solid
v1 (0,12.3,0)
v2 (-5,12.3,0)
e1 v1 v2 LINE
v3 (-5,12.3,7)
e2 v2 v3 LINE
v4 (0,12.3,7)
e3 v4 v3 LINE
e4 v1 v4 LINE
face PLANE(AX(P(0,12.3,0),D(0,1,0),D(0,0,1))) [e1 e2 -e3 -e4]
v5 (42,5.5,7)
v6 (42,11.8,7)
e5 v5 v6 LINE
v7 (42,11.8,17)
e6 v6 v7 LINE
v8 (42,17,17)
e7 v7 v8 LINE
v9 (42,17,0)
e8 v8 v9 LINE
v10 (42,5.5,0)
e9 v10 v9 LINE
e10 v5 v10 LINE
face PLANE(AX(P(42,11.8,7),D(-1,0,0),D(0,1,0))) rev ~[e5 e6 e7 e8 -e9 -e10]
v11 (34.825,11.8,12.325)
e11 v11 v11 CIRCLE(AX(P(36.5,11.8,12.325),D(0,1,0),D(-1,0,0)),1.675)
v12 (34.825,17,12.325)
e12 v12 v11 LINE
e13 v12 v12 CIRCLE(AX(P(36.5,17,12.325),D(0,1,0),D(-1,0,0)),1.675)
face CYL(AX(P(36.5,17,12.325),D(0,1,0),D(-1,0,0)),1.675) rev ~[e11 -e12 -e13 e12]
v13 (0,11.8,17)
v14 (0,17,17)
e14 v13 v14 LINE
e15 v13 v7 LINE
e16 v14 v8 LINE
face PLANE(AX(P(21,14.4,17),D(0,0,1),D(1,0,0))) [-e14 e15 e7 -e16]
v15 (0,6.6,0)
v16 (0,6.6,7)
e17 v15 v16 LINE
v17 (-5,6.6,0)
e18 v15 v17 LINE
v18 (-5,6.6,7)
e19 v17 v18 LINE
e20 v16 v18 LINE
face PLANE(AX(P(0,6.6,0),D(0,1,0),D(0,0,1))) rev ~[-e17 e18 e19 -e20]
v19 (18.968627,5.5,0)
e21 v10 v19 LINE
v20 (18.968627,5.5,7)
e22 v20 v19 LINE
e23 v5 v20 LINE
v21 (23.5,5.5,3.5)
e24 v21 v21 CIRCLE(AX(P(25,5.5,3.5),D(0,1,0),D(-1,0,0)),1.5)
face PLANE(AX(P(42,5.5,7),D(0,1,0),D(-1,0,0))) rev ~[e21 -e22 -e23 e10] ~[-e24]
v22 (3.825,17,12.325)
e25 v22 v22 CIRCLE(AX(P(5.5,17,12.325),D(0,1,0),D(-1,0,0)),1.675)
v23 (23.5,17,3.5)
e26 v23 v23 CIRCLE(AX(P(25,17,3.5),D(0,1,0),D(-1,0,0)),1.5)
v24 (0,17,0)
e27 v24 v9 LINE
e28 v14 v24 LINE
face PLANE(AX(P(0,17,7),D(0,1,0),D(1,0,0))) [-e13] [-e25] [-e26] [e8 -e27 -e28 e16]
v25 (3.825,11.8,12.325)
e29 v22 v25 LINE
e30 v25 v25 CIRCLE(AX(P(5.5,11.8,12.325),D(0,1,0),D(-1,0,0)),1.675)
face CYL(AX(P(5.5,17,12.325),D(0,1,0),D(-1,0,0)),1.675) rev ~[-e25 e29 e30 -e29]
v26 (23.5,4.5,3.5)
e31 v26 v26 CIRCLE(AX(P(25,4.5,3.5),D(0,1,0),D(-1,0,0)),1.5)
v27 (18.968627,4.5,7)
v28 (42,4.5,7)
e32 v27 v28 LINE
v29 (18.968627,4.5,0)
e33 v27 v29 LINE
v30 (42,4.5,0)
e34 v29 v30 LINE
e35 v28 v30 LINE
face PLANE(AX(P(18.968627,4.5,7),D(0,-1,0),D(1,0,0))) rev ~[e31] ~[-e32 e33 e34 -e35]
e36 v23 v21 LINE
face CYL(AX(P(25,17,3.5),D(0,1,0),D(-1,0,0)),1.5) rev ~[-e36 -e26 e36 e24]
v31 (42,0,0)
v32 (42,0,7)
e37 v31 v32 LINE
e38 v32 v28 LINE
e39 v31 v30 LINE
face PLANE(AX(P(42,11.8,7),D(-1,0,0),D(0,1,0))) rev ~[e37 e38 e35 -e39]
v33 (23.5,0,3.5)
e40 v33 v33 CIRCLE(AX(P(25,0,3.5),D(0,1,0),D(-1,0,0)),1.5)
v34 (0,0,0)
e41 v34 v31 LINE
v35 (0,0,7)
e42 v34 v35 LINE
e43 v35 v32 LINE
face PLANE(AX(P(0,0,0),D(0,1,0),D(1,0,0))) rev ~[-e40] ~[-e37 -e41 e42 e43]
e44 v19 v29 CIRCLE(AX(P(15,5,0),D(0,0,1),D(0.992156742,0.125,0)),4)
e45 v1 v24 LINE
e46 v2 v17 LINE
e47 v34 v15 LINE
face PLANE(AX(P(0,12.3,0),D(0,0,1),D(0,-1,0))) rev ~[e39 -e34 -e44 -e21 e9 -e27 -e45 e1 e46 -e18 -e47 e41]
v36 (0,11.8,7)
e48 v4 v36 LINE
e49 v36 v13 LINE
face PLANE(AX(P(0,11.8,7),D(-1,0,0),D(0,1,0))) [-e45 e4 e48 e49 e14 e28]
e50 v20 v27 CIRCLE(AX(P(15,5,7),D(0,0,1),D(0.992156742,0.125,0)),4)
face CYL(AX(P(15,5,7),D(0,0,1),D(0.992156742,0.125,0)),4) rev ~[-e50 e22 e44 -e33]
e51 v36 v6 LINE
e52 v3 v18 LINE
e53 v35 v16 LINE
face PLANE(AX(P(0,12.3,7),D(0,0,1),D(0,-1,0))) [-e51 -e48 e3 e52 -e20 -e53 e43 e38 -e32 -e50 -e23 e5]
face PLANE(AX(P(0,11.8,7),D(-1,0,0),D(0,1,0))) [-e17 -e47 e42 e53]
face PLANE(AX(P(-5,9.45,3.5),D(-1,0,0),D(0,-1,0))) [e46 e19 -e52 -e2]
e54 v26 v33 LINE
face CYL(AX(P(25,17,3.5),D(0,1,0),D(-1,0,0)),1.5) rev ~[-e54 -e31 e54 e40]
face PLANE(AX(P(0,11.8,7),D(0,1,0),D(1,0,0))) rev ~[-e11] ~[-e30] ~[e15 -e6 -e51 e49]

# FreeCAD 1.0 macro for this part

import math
import FreeCAD as App
import Part
import Sketcher
Q = App.Units.Quantity


def add_polygon(sketch, points):
    """Adds a closed chain of lines whose ends are joined by coincident constraints."""
    first, n = sketch.GeometryCount, len(points)
    for a, b in zip(points, points[1:] + points[:1]):
        sketch.addGeometry(Part.LineSegment(App.Vector(*a, 0), App.Vector(*b, 0)), False)
    for i in range(n):
        sketch.addConstraint(Sketcher.Constraint("Coincident", first + i, 2, first + (i + 1) % n, 1))

doc = App.newDocument("Part")
body = doc.addObject("PartDesign::Body", "Body")

# Sketch on XY plane
sketch1 = body.newObject("Sketcher::SketchObject", "Sketch")
sketch1.AttachmentSupport = (doc.getObject("XY_Plane"), [""])
sketch1.MapMode = "FlatFace"
add_polygon(sketch1, [(0, 17), (0, 0), (42, 0), (42, 17)])  # lines 0-3
sketch1.addConstraint(Sketcher.Constraint("Vertical", 0))
sketch1.addConstraint(Sketcher.Constraint("Horizontal", 1))
sketch1.addConstraint(Sketcher.Constraint("Vertical", 2))
sketch1.addConstraint(Sketcher.Constraint("Horizontal", 3))
sketch1.addConstraint(Sketcher.Constraint("Coincident", 0, 2, -1, 1))
sketch1.addConstraint(Sketcher.Constraint("DistanceX", 1, 1, 1, 2, Q("42 mm")))
sketch1.addConstraint(Sketcher.Constraint("DistanceY", 0, 2, 0, 1, Q("17 mm")))
pad1 = body.newObject("PartDesign::Pad", "Pad")
pad1.Profile = sketch1
pad1.Length = 7

# Sketch on XZ plane
sketch2 = body.newObject("Sketcher::SketchObject", "Sketch001")
sketch2.AttachmentSupport = (doc.getObject("XZ_Plane"), [""])
sketch2.MapMode = "FlatFace"
sketch2.AttachmentOffset = App.Placement(App.Vector(0, 0, -17), App.Rotation())
sketch2.addGeometry(Part.Circle(App.Vector(25, 3.5, 0), App.Vector(0, 0, 1), 1.5), False)
sketch2.addConstraint(Sketcher.Constraint("Diameter", 0, Q("3 mm")))
sketch2.addConstraint(Sketcher.Constraint("DistanceX", -1, 1, 0, 3, Q("25 mm")))
sketch2.addConstraint(Sketcher.Constraint("DistanceY", -1, 1, 0, 3, Q("3.5 mm")))
pocket1 = body.newObject("PartDesign::Pocket", "Pocket")
pocket1.Profile = sketch2
pocket1.Length = 25
pocket1.Reversed = True

# Sketch on XY plane
sketch3 = body.newObject("Sketcher::SketchObject", "Sketch002")
sketch3.AttachmentSupport = (doc.getObject("XY_Plane"), [""])
sketch3.MapMode = "FlatFace"
sketch3.AttachmentOffset = App.Placement(App.Vector(0, 0, 7), App.Rotation())
add_polygon(sketch3, [(0, 17), (0, 11.8), (42, 11.8), (42, 17)])  # lines 0-3
sketch3.addConstraint(Sketcher.Constraint("Vertical", 0))
sketch3.addConstraint(Sketcher.Constraint("Horizontal", 1))
sketch3.addConstraint(Sketcher.Constraint("Vertical", 2))
sketch3.addConstraint(Sketcher.Constraint("Horizontal", 3))
sketch3.addConstraint(Sketcher.Constraint("PointOnObject", 0, 2, -2))
sketch3.addConstraint(Sketcher.Constraint("DistanceX", 1, 1, 1, 2, Q("42 mm")))
sketch3.addConstraint(Sketcher.Constraint("DistanceY", 0, 2, 0, 1, Q("5.2 mm")))
sketch3.addConstraint(Sketcher.Constraint("DistanceY", -1, 1, 2, 2, Q("17 mm")))
pad2 = body.newObject("PartDesign::Pad", "Pad001")
pad2.Profile = sketch3
pad2.Length = 10

# Sketch on XZ plane
sketch4 = body.newObject("Sketcher::SketchObject", "Sketch003")
sketch4.AttachmentSupport = (doc.getObject("XZ_Plane"), [""])
sketch4.MapMode = "FlatFace"
sketch4.AttachmentOffset = App.Placement(App.Vector(0, 0, -17), App.Rotation())
sketch4.addGeometry(Part.Circle(App.Vector(36.5, 12.325, 0), App.Vector(0, 0, 1), 1.675), False)
sketch4.addGeometry(Part.Circle(App.Vector(5.5, 12.325, 0), App.Vector(0, 0, 1), 1.675), False)
sketch4.addConstraint(Sketcher.Constraint("Equal", 0, 1))
sketch4.addConstraint(Sketcher.Constraint("Horizontal", 0, 3, 1, 3))
sketch4.addConstraint(Sketcher.Constraint("Diameter", 0, Q("3.35 mm")))
sketch4.addConstraint(Sketcher.Constraint("DistanceX", 1, 3, 0, 3, Q("31 mm")))
sketch4.addConstraint(Sketcher.Constraint("DistanceX", -1, 1, 0, 3, Q("36.5 mm")))
sketch4.addConstraint(Sketcher.Constraint("DistanceY", -1, 1, 0, 3, Q("12.325 mm")))
pocket2 = body.newObject("PartDesign::Pocket", "Pocket001")
pocket2.Profile = sketch4
pocket2.Length = 25
pocket2.Reversed = True

# Sketch on XY plane
sketch5 = body.newObject("Sketcher::SketchObject", "Sketch004")
sketch5.AttachmentSupport = (doc.getObject("XY_Plane"), [""])
sketch5.MapMode = "FlatFace"
sketch5.AttachmentOffset = App.Placement(App.Vector(0, 0, 7), App.Rotation())
sketch5.addGeometry(Part.ArcOfCircle(Part.Circle(App.Vector(15, 5, 0), App.Vector(0, 0, 1), 4), math.radians(7.180756), math.radians(352.819244)), False)
sketch5.addGeometry(Part.LineSegment(App.Vector(18.968627, 4.5, 0), App.Vector(42, 4.5, 0)), False)
sketch5.addGeometry(Part.LineSegment(App.Vector(42, 4.5, 0), App.Vector(42, 5.5, 0)), False)
sketch5.addGeometry(Part.LineSegment(App.Vector(42, 5.5, 0), App.Vector(18.968627, 5.5, 0)), False)
sketch5.addConstraint(Sketcher.Constraint("Coincident", 0, 2, 1, 1))
sketch5.addConstraint(Sketcher.Constraint("Coincident", 1, 2, 2, 1))
sketch5.addConstraint(Sketcher.Constraint("Coincident", 2, 2, 3, 1))
sketch5.addConstraint(Sketcher.Constraint("Coincident", 3, 2, 0, 1))
sketch5.addConstraint(Sketcher.Constraint("Horizontal", 1))
sketch5.addConstraint(Sketcher.Constraint("Vertical", 2))
sketch5.addConstraint(Sketcher.Constraint("Horizontal", 3))
sketch5.addConstraint(Sketcher.Constraint("Vertical", 0, 2, 3, 2))
sketch5.addConstraint(Sketcher.Constraint("Radius", 0, Q("4 mm")))
sketch5.addConstraint(Sketcher.Constraint("DistanceY", 2, 1, 2, 2, Q("1 mm")))
sketch5.addConstraint(Sketcher.Constraint("DistanceX", -1, 1, 0, 3, Q("15 mm")))
sketch5.addConstraint(Sketcher.Constraint("DistanceY", -1, 1, 0, 3, Q("5 mm")))
sketch5.addConstraint(Sketcher.Constraint("DistanceX", -1, 1, 1, 2, Q("42 mm")))
pocket3 = body.newObject("PartDesign::Pocket", "Pocket002")
pocket3.Profile = sketch5
pocket3.Length = 25

# Sketch on YZ plane
sketch6 = body.newObject("Sketcher::SketchObject", "Sketch005")
sketch6.AttachmentSupport = (doc.getObject("YZ_Plane"), [""])
sketch6.MapMode = "FlatFace"
add_polygon(sketch6, [(12.3, 7), (12.3, 0), (6.6, 0), (6.6, 7)])  # lines 0-3
sketch6.addConstraint(Sketcher.Constraint("Vertical", 0))
sketch6.addConstraint(Sketcher.Constraint("Horizontal", 1))
sketch6.addConstraint(Sketcher.Constraint("Vertical", 2))
sketch6.addConstraint(Sketcher.Constraint("Horizontal", 3))
sketch6.addConstraint(Sketcher.Constraint("PointOnObject", 0, 2, -1))
sketch6.addConstraint(Sketcher.Constraint("DistanceY", 0, 2, 0, 1, Q("7 mm")))
sketch6.addConstraint(Sketcher.Constraint("DistanceX", 1, 2, 1, 1, Q("5.7 mm")))
sketch6.addConstraint(Sketcher.Constraint("DistanceX", -1, 1, 0, 2, Q("12.3 mm")))
pad3 = body.newObject("PartDesign::Pad", "Pad002")
pad3.Profile = sketch6
pad3.Length = 5
pad3.Reversed = True

doc.recompute()
